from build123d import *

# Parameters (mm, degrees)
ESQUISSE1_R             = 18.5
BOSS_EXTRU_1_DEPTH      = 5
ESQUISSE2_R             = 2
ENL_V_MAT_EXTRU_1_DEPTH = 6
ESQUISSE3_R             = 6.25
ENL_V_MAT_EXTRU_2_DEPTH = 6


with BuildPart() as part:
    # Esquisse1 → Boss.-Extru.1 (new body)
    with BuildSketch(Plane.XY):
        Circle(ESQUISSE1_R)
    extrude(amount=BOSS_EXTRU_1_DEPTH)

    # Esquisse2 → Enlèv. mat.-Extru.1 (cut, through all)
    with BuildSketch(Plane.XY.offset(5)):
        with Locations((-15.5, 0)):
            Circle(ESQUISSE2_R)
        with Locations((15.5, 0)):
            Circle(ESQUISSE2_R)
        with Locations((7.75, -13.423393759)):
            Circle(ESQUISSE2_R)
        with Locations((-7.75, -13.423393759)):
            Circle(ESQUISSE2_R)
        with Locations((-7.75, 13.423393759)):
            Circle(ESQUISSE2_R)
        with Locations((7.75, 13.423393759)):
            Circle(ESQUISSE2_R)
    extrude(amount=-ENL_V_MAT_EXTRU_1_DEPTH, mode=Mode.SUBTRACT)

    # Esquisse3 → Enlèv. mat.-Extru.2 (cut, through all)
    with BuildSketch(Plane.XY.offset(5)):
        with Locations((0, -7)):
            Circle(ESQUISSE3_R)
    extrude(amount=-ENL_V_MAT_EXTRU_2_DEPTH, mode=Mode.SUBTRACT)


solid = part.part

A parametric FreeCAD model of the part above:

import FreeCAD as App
import Part
import Sketcher

doc = App.newDocument("Part")
body = doc.addObject("PartDesign::Body", "Body")

sketch1 = doc.addObject("Sketcher::SketchObject", "Sketch")
body.addObject(sketch1)
sketch1.AttachmentSupport = (doc.XY_Plane, [""])
sketch1.MapMode = "FlatFace"
sketch1.addGeometry(Part.Circle(App.Vector(0, 0, 0), App.Vector(0, 0, 1), 18), False)
sketch1.addConstraint(Sketcher.Constraint("Coincident", 0, 3, -1, 1))
sketch1.addConstraint(Sketcher.Constraint("Diameter", 0, 37.0))
pad1 = doc.addObject("PartDesign::Pad", "Pad")
body.addObject(pad1)
pad1.Profile = sketch1
pad1.Length = 5

sketch2 = doc.addObject("Sketcher::SketchObject", "Sketch001")
body.addObject(sketch2)
sketch2.AttachmentSupport = (doc.XY_Plane, [""])
sketch2.MapMode = "FlatFace"
sketch2.AttachmentOffset = App.Placement(App.Vector(0, 0, 5), App.Rotation())
sketch2.addGeometry(Part.Circle(App.Vector(-15.5, 0, 0), App.Vector(0, 0, 1), 2), False)
sketch2.addGeometry(Part.Circle(App.Vector(15.5, 0, 0), App.Vector(0, 0, 1), 2), False)
sketch2.addGeometry(Part.Circle(App.Vector(7.8, -13.4, 0), App.Vector(0, 0, 1), 2), False)
sketch2.addGeometry(Part.Circle(App.Vector(-7.8, -13.4, 0), App.Vector(0, 0, 1), 2), False)
sketch2.addGeometry(Part.Circle(App.Vector(-7.8, 13.4, 0), App.Vector(0, 0, 1), 2), False)
sketch2.addGeometry(Part.Circle(App.Vector(7.8, 13.4, 0), App.Vector(0, 0, 1), 2), False)
sketch2.addConstraint(Sketcher.Constraint("Equal", 0, 1))
sketch2.addConstraint(Sketcher.Constraint("Equal", 1, 2))
sketch2.addConstraint(Sketcher.Constraint("Equal", 2, 3))
sketch2.addConstraint(Sketcher.Constraint("Equal", 3, 4))
sketch2.addConstraint(Sketcher.Constraint("Equal", 4, 5))
sketch2.addConstraint(Sketcher.Constraint("Symmetric", 0, 3, 1, 3, -1, 1))
sketch2.addConstraint(Sketcher.Constraint("Symmetric", 2, 3, 4, 3, -1, 1))
sketch2.addConstraint(Sketcher.Constraint("Symmetric", 3, 3, 5, 3, -1, 1))
sketch2.addConstraint(Sketcher.Constraint("Symmetric", 2, 3, 3, 3, -2))
sketch2.addConstraint(Sketcher.Constraint("PointOnObject", 0, 3, -1))
sketch2.addConstraint(Sketcher.Constraint("Diameter", 0, 4.0))
sketch2.addConstraint(Sketcher.Constraint("DistanceX", 0, 3, 1, 3, 31.0))
sketch2.addConstraint(Sketcher.Constraint("DistanceX", 3, 3, 2, 3, 15.5))
sketch2.addConstraint(Sketcher.Constraint("DistanceY", 2, 3, -1, 1, 13.423394))
pocket1 = doc.addObject("PartDesign::Pocket", "Pocket")
body.addObject(pocket1)
pocket1.Profile = sketch2
pocket1.Type = "ThroughAll"

sketch3 = doc.addObject("Sketcher::SketchObject", "Sketch002")
body.addObject(sketch3)
sketch3.AttachmentSupport = (doc.XY_Plane, [""])
sketch3.MapMode = "FlatFace"
sketch3.AttachmentOffset = App.Placement(App.Vector(0, 0, 5), App.Rotation())
sketch3.addGeometry(Part.Circle(App.Vector(0, -7, 0), App.Vector(0, 0, 1), 6), False)
sketch3.addConstraint(Sketcher.Constraint("PointOnObject", 0, 3, -2))
sketch3.addConstraint(Sketcher.Constraint("Diameter", 0, 12.5))
sketch3.addConstraint(Sketcher.Constraint("DistanceY", 0, 3, -1, 1, 7.0))
pocket2 = doc.addObject("PartDesign::Pocket", "Pocket001")
body.addObject(pocket2)
pocket2.Profile = sketch3
pocket2.Type = "ThroughAll"

doc.recompute()
